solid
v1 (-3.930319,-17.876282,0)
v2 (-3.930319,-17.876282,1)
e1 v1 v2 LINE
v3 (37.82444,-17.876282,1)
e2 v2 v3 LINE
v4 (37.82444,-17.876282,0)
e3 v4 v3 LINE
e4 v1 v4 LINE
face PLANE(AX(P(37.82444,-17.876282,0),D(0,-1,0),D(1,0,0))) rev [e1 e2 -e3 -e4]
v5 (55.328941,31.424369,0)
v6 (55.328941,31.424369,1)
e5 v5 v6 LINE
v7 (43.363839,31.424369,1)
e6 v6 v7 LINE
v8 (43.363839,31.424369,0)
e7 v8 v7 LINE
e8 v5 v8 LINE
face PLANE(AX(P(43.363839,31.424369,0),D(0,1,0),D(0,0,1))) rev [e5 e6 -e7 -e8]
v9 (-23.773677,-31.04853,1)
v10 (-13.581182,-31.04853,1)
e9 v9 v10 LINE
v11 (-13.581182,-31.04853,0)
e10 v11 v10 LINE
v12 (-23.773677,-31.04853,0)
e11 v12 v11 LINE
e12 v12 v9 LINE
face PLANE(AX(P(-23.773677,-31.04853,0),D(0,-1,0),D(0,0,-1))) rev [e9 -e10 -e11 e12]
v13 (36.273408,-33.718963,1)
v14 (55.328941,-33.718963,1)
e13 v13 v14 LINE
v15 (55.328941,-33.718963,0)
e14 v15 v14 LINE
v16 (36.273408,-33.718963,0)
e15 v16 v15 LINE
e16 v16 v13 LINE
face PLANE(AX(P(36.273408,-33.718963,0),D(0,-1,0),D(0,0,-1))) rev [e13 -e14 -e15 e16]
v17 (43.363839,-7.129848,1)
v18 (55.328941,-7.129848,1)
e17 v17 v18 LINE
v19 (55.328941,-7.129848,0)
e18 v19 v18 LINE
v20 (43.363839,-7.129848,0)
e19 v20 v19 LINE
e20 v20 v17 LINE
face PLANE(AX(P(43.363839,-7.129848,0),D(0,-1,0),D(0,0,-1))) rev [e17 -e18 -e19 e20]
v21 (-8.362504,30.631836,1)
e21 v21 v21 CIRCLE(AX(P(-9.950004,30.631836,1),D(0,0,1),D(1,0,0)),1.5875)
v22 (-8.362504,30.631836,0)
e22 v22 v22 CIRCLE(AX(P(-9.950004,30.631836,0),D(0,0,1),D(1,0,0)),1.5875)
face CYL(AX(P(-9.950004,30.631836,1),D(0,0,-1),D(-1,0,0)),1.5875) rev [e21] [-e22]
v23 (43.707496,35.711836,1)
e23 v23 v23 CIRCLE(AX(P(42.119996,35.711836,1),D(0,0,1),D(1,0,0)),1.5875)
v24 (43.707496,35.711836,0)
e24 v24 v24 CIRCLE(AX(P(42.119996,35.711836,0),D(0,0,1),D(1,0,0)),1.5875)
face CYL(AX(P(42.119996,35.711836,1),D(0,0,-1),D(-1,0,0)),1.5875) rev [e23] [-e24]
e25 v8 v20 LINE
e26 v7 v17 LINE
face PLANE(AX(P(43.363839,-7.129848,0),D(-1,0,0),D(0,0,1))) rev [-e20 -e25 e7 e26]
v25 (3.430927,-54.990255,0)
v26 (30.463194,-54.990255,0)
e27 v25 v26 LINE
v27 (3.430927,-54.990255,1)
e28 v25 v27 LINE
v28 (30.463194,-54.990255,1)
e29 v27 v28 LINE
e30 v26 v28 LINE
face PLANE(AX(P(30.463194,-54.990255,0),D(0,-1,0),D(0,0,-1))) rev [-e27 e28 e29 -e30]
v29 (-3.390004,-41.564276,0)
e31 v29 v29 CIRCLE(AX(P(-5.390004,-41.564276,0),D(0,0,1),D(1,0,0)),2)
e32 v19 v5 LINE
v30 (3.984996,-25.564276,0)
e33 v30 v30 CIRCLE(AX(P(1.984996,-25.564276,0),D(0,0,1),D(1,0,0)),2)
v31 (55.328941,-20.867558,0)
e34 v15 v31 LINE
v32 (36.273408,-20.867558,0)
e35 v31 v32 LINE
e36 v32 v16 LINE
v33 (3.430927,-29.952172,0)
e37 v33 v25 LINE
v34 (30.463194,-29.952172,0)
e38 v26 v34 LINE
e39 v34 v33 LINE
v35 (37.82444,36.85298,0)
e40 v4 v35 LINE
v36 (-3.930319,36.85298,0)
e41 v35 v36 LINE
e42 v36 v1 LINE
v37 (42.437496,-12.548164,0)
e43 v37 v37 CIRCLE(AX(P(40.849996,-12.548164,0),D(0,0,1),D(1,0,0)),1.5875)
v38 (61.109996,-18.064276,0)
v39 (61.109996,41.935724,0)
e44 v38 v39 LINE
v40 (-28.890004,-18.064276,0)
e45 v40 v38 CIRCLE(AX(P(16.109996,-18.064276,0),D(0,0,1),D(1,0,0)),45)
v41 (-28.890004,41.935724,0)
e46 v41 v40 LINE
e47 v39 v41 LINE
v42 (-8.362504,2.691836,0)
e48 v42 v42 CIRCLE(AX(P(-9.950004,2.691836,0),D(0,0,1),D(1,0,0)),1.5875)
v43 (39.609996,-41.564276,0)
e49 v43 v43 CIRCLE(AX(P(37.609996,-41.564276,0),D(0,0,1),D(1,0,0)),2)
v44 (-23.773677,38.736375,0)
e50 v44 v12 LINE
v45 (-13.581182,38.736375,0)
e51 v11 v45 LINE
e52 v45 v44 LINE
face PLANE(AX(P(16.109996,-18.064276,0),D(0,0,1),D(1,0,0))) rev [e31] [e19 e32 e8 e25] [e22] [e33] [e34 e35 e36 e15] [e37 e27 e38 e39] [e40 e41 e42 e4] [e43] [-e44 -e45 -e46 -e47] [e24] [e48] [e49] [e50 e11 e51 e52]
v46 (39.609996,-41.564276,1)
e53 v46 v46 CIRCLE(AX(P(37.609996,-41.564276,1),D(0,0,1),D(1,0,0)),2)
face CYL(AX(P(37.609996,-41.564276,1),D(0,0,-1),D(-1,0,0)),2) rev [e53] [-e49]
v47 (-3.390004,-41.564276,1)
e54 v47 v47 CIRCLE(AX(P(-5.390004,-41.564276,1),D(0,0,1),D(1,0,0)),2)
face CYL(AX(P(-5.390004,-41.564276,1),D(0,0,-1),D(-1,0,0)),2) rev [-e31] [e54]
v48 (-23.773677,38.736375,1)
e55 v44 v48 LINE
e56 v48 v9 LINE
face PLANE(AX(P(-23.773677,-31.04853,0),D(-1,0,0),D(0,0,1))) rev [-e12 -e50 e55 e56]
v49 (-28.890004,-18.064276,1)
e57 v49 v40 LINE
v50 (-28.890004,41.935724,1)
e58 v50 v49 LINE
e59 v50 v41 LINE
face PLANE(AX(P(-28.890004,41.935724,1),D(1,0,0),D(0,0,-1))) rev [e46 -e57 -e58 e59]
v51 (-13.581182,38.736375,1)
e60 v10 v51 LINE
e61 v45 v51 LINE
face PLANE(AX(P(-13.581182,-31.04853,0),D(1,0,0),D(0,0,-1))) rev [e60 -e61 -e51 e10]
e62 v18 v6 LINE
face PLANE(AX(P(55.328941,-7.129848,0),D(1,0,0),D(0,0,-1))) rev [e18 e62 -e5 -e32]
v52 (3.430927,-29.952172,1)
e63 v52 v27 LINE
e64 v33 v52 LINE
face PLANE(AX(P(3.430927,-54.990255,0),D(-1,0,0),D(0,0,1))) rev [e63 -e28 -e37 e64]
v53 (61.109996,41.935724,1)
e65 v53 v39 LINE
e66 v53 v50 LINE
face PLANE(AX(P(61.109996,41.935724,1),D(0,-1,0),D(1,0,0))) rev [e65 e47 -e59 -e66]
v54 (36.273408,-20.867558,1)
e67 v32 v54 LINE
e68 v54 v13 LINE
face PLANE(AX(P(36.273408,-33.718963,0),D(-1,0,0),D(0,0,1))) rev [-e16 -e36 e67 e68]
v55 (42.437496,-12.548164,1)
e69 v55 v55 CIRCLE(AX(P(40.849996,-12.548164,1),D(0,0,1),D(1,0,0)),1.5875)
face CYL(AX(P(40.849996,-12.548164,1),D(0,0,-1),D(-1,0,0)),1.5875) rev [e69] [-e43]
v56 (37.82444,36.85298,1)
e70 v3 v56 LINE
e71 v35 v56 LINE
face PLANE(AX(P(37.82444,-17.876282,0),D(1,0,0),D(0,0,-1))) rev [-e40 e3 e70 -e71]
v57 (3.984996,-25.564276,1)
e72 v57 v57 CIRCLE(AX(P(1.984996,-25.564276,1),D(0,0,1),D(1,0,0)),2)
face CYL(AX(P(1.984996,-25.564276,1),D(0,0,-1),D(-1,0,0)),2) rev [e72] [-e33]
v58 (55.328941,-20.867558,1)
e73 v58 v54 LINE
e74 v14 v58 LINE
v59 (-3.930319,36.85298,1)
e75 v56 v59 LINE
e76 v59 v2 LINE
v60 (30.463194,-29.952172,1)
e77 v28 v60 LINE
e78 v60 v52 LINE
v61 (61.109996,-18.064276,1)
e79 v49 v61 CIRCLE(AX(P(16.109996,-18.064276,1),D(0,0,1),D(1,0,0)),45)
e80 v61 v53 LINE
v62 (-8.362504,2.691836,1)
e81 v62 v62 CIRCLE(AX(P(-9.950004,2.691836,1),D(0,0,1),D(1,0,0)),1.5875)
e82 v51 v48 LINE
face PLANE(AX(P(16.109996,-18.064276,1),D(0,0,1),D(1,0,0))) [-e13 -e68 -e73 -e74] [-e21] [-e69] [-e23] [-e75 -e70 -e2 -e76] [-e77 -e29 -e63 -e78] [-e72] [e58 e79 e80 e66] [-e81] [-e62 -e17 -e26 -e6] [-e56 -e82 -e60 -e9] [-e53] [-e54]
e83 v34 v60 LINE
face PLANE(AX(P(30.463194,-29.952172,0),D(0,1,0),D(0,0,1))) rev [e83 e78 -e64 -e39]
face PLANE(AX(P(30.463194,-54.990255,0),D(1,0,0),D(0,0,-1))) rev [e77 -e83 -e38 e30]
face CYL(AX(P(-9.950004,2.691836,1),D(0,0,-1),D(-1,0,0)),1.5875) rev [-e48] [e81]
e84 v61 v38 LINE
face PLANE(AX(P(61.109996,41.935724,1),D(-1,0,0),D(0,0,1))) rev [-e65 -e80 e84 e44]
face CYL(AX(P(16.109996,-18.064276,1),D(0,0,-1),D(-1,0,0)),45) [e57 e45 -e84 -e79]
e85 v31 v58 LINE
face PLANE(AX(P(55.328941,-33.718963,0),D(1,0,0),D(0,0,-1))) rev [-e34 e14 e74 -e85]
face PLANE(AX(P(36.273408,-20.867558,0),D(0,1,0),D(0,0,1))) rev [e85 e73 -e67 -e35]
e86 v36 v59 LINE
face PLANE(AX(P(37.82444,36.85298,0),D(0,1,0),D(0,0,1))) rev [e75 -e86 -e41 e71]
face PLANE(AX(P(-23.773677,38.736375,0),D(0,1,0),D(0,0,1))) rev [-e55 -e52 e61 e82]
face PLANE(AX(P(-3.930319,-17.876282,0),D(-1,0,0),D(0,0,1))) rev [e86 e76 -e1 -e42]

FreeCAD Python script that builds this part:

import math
import FreeCAD as App
import Part
import Sketcher
from FreeCAD import Vector
Q = App.Units.Quantity

doc = App.newDocument("Part")
params = doc.addObject("Spreadsheet::Sheet", "Params")
for row, (alias, value) in enumerate([
    ("sketch1_diameter", "4 mm"),
    ("sketch1_radius", "45 mm"),
    ("sketch1_height", "60 mm"),
    ("pad1_length", "1 mm"),
], start=1):
    params.set(f"A{row}", alias)
    params.set(f"B{row}", "=" + value)
    params.setAlias(f"B{row}", alias)

body = doc.addObject("PartDesign::Body", "Body")

sketch1 = body.newObject("Sketcher::SketchObject", "Sketch")
sketch1.AttachmentSupport = (doc.getObject("XY_Plane"), [""])
sketch1.MapMode = "FlatFace"
sketch1.addGeometry([
    Part.LineSegment(Vector(61.109996, -18.064276, 0), Vector(61.109996, 41.935724, 0)),
    Part.LineSegment(Vector(61.109996, 41.935724, 0), Vector(-28.890004, 41.935724, 0)),
    Part.LineSegment(Vector(-28.890004, 41.935724, 0), Vector(-28.890004, -18.064276, 0)),
    Part.ArcOfCircle(Part.Circle(Vector(16.109996, -18.064276, 0), Vector(0, 0, 1), 45), math.radians(180), math.radians(360)),
    Part.Circle(Vector(37.609996, -41.564276, 0), Vector(0, 0, 1), 2),
    Part.Circle(Vector(40.849996, -12.548164, 0), Vector(0, 0, 1), 1.5875),
    Part.Circle(Vector(-5.390004, -41.564276, 0), Vector(0, 0, 1), 2),
    Part.Circle(Vector(1.984996, -25.564276, 0), Vector(0, 0, 1), 2),
    Part.Circle(Vector(42.119996, 35.711836, 0), Vector(0, 0, 1), 1.5875),
    Part.Circle(Vector(-9.950004, 2.691836, 0), Vector(0, 0, 1), 1.5875),
    Part.Circle(Vector(-9.950004, 30.631836, 0), Vector(0, 0, 1), 1.5875),
], False)
sketch1.addConstraint([
    Sketcher.Constraint("Coincident", 0, 2, 1, 1),
    Sketcher.Constraint("Coincident", 1, 2, 2, 1),
    Sketcher.Constraint("Tangent", 2, 2, 3, 1),
    Sketcher.Constraint("Tangent", 3, 2, 0, 1),
    Sketcher.Constraint("Vertical", 0),
    Sketcher.Constraint("Horizontal", 1),
    Sketcher.Constraint("Vertical", 2),
    Sketcher.Constraint("Equal", 4, 6),
    Sketcher.Constraint("Equal", 6, 7),
    Sketcher.Constraint("Equal", 5, 8),
    Sketcher.Constraint("Equal", 8, 9),
    Sketcher.Constraint("Equal", 9, 10),
    Sketcher.Constraint("Horizontal", 4, 3, 6, 3),
    Sketcher.Constraint("Vertical", 9, 3, 10, 3),
    Sketcher.Constraint("Diameter", 4, Q("4 mm")),
    Sketcher.Constraint("Radius", 3, Q("45 mm")),
    Sketcher.Constraint("DistanceY", 0, 1, 0, 2, Q("60 mm")),
    Sketcher.Constraint("Diameter", 5, Q("3.175 mm")),
    Sketcher.Constraint("DistanceX", 6, 3, 4, 3, Q("43 mm")),
    Sketcher.Constraint("DistanceY", 6, 3, 7, 3, Q("16 mm")),
    Sketcher.Constraint("DistanceX", 3, 3, 4, 3, Q("21.5 mm")),
    Sketcher.Constraint("DistanceY", 4, 3, 3, 3, Q("23.5 mm")),
    Sketcher.Constraint("DistanceX", 9, 3, 5, 3, Q("50.8 mm")),
    Sketcher.Constraint("DistanceX", 3, 3, 5, 3, Q("24.74 mm")),
    Sketcher.Constraint("DistanceX", 5, 3, 8, 3, Q("1.27 mm")),
    Sketcher.Constraint("DistanceY", 5, 3, 8, 3, Q("48.26 mm")),
    Sketcher.Constraint("DistanceY", 5, 3, 9, 3, Q("15.24 mm")),
    Sketcher.Constraint("DistanceY", 9, 3, 10, 3, Q("27.94 mm")),
    Sketcher.Constraint("DistanceX", 7, 3, 3, 3, Q("14.125 mm")),
    Sketcher.Constraint("DistanceY", 3, 3, 5, 3, Q("5.516112 mm")),
    Sketcher.Constraint("DistanceX", -1, 1, 3, 3, Q("16.109996 mm")),
    Sketcher.Constraint("DistanceY", 3, 3, -1, 1, Q("18.064276 mm")),
])
sketch1.setExpression("Constraints[14]", "Params.sketch1_diameter")
sketch1.setExpression("Constraints[15]", "Params.sketch1_radius")
sketch1.setExpression("Constraints[16]", "Params.sketch1_height")
pad1 = body.newObject("PartDesign::Pad", "Pad")
pad1.Profile = sketch1
pad1.setExpression("Length", "Params.pad1_length")

sketch2 = body.newObject("Sketcher::SketchObject", "Sketch001")
sketch2.AttachmentSupport = (doc.getObject("XY_Plane"), [""])
sketch2.MapMode = "FlatFace"
sketch2.AttachmentOffset = App.Placement(Vector(0, 0, 1), App.Rotation())
sketch2.addGeometry([
    Part.LineSegment(Vector(-3.930319, 36.85298, 0), Vector(-3.930319, -17.876282, 0)),
    Part.LineSegment(Vector(-3.930319, -17.876282, 0), Vector(37.82444, -17.876282, 0)),
    Part.LineSegment(Vector(37.82444, -17.876282, 0), Vector(37.82444, 36.85298, 0)),
    Part.LineSegment(Vector(37.82444, 36.85298, 0), Vector(-3.930319, 36.85298, 0)),
    Part.LineSegment(Vector(-23.773677, 38.736375, 0), Vector(-23.773677, -31.04853, 0)),
    Part.LineSegment(Vector(-23.773677, -31.04853, 0), Vector(-13.581182, -31.04853, 0)),
    Part.LineSegment(Vector(-13.581182, -31.04853, 0), Vector(-13.581182, 38.736375, 0)),
    Part.LineSegment(Vector(-13.581182, 38.736375, 0), Vector(-23.773677, 38.736375, 0)),
    Part.LineSegment(Vector(3.430927, -29.952172, 0), Vector(3.430927, -54.990255, 0)),
    Part.LineSegment(Vector(3.430927, -54.990255, 0), Vector(30.463194, -54.990255, 0)),
    Part.LineSegment(Vector(30.463194, -54.990255, 0), Vector(30.463194, -29.952172, 0)),
    Part.LineSegment(Vector(30.463194, -29.952172, 0), Vector(3.430927, -29.952172, 0)),
    Part.LineSegment(Vector(43.363839, 31.424369, 0), Vector(43.363839, -7.129848, 0)),
    Part.LineSegment(Vector(43.363839, -7.129848, 0), Vector(55.328941, -7.129848, 0)),
    Part.LineSegment(Vector(55.328941, -7.129848, 0), Vector(55.328941, 31.424369, 0)),
    Part.LineSegment(Vector(55.328941, 31.424369, 0), Vector(43.363839, 31.424369, 0)),
    Part.LineSegment(Vector(36.273408, -20.867558, 0), Vector(36.273408, -33.718963, 0)),
    Part.LineSegment(Vector(36.273408, -33.718963, 0), Vector(55.328941, -33.718963, 0)),
    Part.LineSegment(Vector(55.328941, -33.718963, 0), Vector(55.328941, -20.867558, 0)),
    Part.LineSegment(Vector(55.328941, -20.867558, 0), Vector(36.273408, -20.867558, 0)),
], False)
sketch2.addConstraint([
    Sketcher.Constraint("Coincident", 0, 2, 1, 1),
    Sketcher.Constraint("Coincident", 1, 2, 2, 1),
    Sketcher.Constraint("Coincident", 2, 2, 3, 1),
    Sketcher.Constraint("Coincident", 3, 2, 0, 1),
    Sketcher.Constraint("Coincident", 4, 2, 5, 1),
    Sketcher.Constraint("Coincident", 5, 2, 6, 1),
    Sketcher.Constraint("Coincident", 6, 2, 7, 1),
    Sketcher.Constraint("Coincident", 7, 2, 4, 1),
    Sketcher.Constraint("Coincident", 8, 2, 9, 1),
    Sketcher.Constraint("Coincident", 9, 2, 10, 1),
    Sketcher.Constraint("Coincident", 10, 2, 11, 1),
    Sketcher.Constraint("Coincident", 11, 2, 8, 1),
    Sketcher.Constraint("Coincident", 12, 2, 13, 1),
    Sketcher.Constraint("Coincident", 13, 2, 14, 1),
    Sketcher.Constraint("Coincident", 14, 2, 15, 1),
    Sketcher.Constraint("Coincident", 15, 2, 12, 1),
    Sketcher.Constraint("Coincident", 16, 2, 17, 1),
    Sketcher.Constraint("Coincident", 17, 2, 18, 1),
    Sketcher.Constraint("Coincident", 18, 2, 19, 1),
    Sketcher.Constraint("Coincident", 19, 2, 16, 1),
    Sketcher.Constraint("Vertical", 0),
    Sketcher.Constraint("Horizontal", 1),
    Sketcher.Constraint("Vertical", 2),
    Sketcher.Constraint("Horizontal", 3),
    Sketcher.Constraint("Vertical", 4),
    Sketcher.Constraint("Horizontal", 5),
    Sketcher.Constraint("Vertical", 6),
    Sketcher.Constraint("Horizontal", 7),
    Sketcher.Constraint("Vertical", 8),
    Sketcher.Constraint("Horizontal", 9),
    Sketcher.Constraint("Vertical", 10),
    Sketcher.Constraint("Horizontal", 11),
    Sketcher.Constraint("Vertical", 12),
    Sketcher.Constraint("Horizontal", 13),
    Sketcher.Constraint("Vertical", 14),
    Sketcher.Constraint("Horizontal", 15),
    Sketcher.Constraint("Vertical", 16),
    Sketcher.Constraint("Horizontal", 17),
    Sketcher.Constraint("Vertical", 18),
    Sketcher.Constraint("Horizontal", 19),
    Sketcher.Constraint("Vertical", 14, 2, 17, 2),
    Sketcher.Constraint("DistanceX", 13, 1, 13, 2, Q("11.965102 mm")),
    Sketcher.Constraint("DistanceX", 1, 1, 1, 2, Q("41.754758 mm")),
    Sketcher.Constraint("DistanceY", 0, 2, 0, 1, Q("54.729262 mm")),
    Sketcher.Constraint("DistanceX", 1, 2, 12, 2, Q("5.539399 mm")),
    Sketcher.Constraint("DistanceX", 5, 1, 5, 2, Q("10.192494 mm")),
    Sketcher.Constraint("DistanceX", 9, 1, 9, 2, Q("27.032267 mm")),
    Sketcher.Constraint("DistanceX", 17, 1, 17, 2, Q("19.055532 mm")),
    Sketcher.Constraint("DistanceY", 4, 2, 4, 1, Q("69.784905 mm")),
    Sketcher.Constraint("DistanceY", 8, 2, 8, 1, Q("25.038083 mm")),
    Sketcher.Constraint("DistanceY", 12, 2, 12, 1, Q("38.554217 mm")),
    Sketcher.Constraint("DistanceY", 16, 2, 16, 1, Q("12.851406 mm")),
    Sketcher.Constraint("DistanceX", 0, 2, -1, 1, Q("3.930319 mm")),
    Sketcher.Constraint("DistanceY", -1, 1, 2, 2, Q("36.85298 mm")),
    Sketcher.Constraint("DistanceY", 4, 2, -1, 1, Q("31.04853 mm")),
    Sketcher.Constraint("DistanceY", 10, 2, -1, 1, Q("29.952172 mm")),
    Sketcher.Constraint("DistanceY", 12, 2, -1, 1, Q("7.129848 mm")),
    Sketcher.Constraint("DistanceX", 4, 2, 0, 2, Q("19.843358 mm")),
    Sketcher.Constraint("DistanceX", 5, 2, 8, 2, Q("17.01211 mm")),
    Sketcher.Constraint("DistanceY", 16, 2, 10, 2, Q("3.766791 mm")),
])
pocket1 = body.newObject("PartDesign::Pocket", "Pocket")
pocket1.Profile = sketch2
pocket1.Type = "ThroughAll"

doc.recompute()
